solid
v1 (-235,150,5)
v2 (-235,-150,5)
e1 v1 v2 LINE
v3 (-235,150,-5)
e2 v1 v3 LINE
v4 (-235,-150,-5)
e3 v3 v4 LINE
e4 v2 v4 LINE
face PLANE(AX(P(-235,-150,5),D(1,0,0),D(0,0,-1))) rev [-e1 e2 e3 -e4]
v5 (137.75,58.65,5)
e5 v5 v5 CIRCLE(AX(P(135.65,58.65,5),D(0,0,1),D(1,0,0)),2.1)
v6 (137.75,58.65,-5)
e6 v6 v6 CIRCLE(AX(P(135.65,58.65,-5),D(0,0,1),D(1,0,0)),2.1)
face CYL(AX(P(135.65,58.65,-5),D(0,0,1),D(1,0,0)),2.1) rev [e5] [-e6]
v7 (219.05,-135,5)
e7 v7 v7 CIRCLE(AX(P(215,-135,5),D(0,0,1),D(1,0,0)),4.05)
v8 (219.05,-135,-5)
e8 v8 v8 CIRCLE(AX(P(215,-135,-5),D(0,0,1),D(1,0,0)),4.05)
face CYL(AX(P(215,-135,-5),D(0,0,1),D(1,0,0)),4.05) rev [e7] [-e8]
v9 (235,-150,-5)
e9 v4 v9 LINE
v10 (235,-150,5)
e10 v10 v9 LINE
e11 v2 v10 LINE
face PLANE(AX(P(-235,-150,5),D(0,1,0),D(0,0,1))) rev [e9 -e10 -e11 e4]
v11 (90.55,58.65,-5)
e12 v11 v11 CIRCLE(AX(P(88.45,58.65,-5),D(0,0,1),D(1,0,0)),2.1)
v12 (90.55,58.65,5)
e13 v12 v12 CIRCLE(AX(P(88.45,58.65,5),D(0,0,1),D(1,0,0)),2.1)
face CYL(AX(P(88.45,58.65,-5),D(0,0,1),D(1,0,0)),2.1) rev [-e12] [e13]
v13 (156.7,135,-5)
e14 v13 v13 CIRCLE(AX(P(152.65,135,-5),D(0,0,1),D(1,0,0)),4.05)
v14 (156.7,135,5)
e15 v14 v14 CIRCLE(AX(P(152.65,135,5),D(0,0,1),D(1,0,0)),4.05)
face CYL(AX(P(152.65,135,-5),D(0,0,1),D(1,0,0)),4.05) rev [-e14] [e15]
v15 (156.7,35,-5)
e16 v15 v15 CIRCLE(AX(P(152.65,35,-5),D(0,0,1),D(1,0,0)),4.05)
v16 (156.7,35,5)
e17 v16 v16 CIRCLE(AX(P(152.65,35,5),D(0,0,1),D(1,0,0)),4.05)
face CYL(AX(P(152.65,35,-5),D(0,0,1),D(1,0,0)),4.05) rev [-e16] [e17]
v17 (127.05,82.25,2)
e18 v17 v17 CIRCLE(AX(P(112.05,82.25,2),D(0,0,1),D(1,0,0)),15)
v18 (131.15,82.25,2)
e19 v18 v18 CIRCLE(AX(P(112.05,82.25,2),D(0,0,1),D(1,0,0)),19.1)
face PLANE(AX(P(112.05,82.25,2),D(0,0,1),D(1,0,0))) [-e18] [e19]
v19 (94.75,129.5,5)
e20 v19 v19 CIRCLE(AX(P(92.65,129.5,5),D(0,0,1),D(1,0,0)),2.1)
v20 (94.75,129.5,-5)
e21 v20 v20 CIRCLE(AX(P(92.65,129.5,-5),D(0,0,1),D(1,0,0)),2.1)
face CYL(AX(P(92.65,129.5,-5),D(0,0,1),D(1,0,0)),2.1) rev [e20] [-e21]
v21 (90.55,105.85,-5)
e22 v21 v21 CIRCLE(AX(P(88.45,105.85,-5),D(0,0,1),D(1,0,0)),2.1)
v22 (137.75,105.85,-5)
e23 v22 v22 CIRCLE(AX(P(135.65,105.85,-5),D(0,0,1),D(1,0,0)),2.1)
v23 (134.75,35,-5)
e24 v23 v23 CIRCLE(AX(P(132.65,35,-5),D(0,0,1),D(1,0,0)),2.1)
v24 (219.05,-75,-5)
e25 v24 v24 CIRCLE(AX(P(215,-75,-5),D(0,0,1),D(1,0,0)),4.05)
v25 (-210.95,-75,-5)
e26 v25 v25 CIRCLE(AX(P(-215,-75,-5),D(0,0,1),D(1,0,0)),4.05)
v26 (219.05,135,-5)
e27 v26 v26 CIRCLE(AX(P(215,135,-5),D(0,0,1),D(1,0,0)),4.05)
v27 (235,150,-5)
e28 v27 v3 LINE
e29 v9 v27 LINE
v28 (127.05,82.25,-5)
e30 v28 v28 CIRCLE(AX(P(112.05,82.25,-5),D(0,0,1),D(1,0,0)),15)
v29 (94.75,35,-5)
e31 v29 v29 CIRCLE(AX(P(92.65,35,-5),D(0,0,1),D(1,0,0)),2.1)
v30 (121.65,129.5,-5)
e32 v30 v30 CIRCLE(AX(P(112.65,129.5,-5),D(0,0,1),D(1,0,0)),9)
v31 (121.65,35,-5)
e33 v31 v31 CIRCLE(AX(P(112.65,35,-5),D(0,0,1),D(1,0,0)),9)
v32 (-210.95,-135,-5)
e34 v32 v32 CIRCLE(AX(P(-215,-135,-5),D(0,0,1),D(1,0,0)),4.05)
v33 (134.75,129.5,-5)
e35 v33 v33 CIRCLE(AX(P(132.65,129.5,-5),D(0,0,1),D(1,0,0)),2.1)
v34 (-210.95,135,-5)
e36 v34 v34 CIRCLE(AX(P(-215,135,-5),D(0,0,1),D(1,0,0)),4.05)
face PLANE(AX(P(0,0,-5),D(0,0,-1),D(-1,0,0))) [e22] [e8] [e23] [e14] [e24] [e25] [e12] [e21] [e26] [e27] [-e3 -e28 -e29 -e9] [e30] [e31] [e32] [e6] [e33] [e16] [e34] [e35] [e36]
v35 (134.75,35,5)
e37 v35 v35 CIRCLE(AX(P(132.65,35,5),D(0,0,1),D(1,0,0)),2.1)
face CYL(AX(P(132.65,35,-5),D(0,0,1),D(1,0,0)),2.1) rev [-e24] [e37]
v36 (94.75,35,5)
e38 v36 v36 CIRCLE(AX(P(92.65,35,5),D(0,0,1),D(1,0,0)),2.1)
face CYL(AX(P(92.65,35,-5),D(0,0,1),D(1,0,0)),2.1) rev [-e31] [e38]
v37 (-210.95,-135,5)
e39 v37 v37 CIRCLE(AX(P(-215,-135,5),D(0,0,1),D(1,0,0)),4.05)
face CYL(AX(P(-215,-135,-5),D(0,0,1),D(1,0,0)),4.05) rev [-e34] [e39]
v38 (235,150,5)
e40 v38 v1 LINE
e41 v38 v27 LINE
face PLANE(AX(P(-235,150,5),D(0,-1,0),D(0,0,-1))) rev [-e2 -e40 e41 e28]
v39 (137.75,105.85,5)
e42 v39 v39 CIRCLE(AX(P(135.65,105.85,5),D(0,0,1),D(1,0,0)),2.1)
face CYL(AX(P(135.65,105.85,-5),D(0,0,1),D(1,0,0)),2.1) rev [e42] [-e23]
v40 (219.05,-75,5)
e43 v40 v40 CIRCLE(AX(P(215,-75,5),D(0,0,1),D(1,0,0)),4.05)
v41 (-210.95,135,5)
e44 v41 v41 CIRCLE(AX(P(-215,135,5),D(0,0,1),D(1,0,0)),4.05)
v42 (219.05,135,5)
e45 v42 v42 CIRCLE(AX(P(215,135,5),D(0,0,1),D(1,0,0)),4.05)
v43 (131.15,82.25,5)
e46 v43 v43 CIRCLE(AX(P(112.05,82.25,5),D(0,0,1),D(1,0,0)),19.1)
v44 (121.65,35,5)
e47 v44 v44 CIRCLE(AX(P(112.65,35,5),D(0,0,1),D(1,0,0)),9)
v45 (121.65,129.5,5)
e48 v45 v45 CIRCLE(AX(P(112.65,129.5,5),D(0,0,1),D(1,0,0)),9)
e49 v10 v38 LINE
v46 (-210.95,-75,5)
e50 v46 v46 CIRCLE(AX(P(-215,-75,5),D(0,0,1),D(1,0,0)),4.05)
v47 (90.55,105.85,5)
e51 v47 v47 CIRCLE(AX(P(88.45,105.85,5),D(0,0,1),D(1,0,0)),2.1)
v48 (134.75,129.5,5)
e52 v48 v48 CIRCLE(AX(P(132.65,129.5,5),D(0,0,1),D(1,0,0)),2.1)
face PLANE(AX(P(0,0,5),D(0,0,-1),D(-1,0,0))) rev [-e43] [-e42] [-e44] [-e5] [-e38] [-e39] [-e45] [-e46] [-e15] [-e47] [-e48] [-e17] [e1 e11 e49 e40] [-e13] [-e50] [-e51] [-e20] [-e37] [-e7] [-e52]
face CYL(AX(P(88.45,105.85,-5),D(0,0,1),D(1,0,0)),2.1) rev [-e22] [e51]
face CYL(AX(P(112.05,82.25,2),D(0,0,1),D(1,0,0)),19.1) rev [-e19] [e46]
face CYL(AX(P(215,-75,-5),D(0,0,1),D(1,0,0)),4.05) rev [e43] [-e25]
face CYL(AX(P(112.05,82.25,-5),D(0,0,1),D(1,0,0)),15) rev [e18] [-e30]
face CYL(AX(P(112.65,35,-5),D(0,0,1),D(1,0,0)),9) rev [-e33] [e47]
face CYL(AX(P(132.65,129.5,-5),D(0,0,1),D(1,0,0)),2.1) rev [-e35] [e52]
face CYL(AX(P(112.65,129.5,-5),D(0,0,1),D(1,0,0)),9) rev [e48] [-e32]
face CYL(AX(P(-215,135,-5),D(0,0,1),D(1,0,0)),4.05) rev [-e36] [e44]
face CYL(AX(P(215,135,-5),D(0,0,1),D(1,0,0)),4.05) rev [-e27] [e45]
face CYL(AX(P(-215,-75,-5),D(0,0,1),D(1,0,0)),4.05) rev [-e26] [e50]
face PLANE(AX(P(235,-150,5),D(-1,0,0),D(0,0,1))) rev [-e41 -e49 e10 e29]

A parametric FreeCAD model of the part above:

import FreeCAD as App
import Part
import Sketcher

V = App.Vector

doc = App.newDocument("Part")
body = doc.addObject("PartDesign::Body", "Body")

# Sketch on XY plane
sketch1 = body.newObject("Sketcher::SketchObject", "Sketch")
sketch1.AttachmentSupport = (doc.getObject("XY_Plane"), [""])
sketch1.MapMode = "FlatFace"
sketch1.addGeometry([
    Part.LineSegment(V(-235, 150, 0), V(-235, -150, 0)),
    Part.LineSegment(V(-235, -150, 0), V(235, -150, 0)),
    Part.LineSegment(V(235, -150, 0), V(235, 150, 0)),
    Part.LineSegment(V(235, 150, 0), V(-235, 150, 0)),
], False)
sketch1.addConstraint([
    Sketcher.Constraint("Coincident", 0, 2, 1, 1),
    Sketcher.Constraint("Coincident", 1, 2, 2, 1),
    Sketcher.Constraint("Coincident", 2, 2, 3, 1),
    Sketcher.Constraint("Coincident", 3, 2, 0, 1),
    Sketcher.Constraint("Vertical", 0),
    Sketcher.Constraint("Horizontal", 1),
    Sketcher.Constraint("Vertical", 2),
    Sketcher.Constraint("Horizontal", 3),
    Sketcher.Constraint("Symmetric", 0, 2, 2, 2, -1, 1),
    Sketcher.Constraint("DistanceX", 1, 1, 1, 2, 470.0),
    Sketcher.Constraint("DistanceY", 0, 2, 0, 1, 300.0),
])
pad1 = body.newObject("PartDesign::Pad", "Pad")
pad1.Profile = sketch1
pad1.Length = 10
pad1.Midplane = True

# Sketch on XY plane
sketch2 = body.newObject("Sketcher::SketchObject", "Sketch001")
sketch2.AttachmentSupport = (doc.getObject("XY_Plane"), [""])
sketch2.MapMode = "FlatFace"
sketch2.AttachmentOffset = App.Placement(V(0, 0, 5), App.Rotation())
sketch2.addGeometry([
    Part.Circle(V(-215, -75, 0), V(0, 0, 1), 4.05),  # 0
    Part.Circle(V(-215, -135, 0), V(0, 0, 1), 4.05),  # 1
    Part.Circle(V(215, -75, 0), V(0, 0, 1), 4.05),  # 2
    Part.Circle(V(215, -135, 0), V(0, 0, 1), 4.05),  # 3
    Part.Circle(V(-215, 135, 0), V(0, 0, 1), 4.05),  # 4
    Part.Circle(V(215, 135, 0), V(0, 0, 1), 4.05),  # 5
], False)
sketch2.addConstraint([
    Sketcher.Constraint("Equal", 0, 1),
    Sketcher.Constraint("Equal", 1, 2),
    Sketcher.Constraint("Equal", 2, 3),
    Sketcher.Constraint("Equal", 3, 4),
    Sketcher.Constraint("Equal", 4, 5),
    Sketcher.Constraint("Symmetric", 3, 3, 4, 3, -1, 1),
    Sketcher.Constraint("Symmetric", 1, 3, 5, 3, -1, 1),
    Sketcher.Constraint("Symmetric", 0, 3, 2, 3, -2),
    Sketcher.Constraint("Symmetric", 1, 3, 3, 3, -2),
    Sketcher.Constraint("Vertical", 0, 3, 1, 3),
    Sketcher.Constraint("Diameter", 0, 8.1),
    Sketcher.Constraint("DistanceX", 0, 3, -1, 1, 215.0),
    Sketcher.Constraint("DistanceY", 0, 3, -1, 1, 75.0),
    Sketcher.Constraint("DistanceY", 1, 3, -1, 1, 135.0),
])
pocket1 = body.newObject("PartDesign::Pocket", "Pocket")
pocket1.Profile = sketch2
pocket1.Length = 10

# Sketch on XY plane
sketch3 = body.newObject("Sketcher::SketchObject", "Sketch002")
sketch3.AttachmentSupport = (doc.getObject("XY_Plane"), [""])
sketch3.MapMode = "FlatFace"
sketch3.AttachmentOffset = App.Placement(V(0, 0, 5), App.Rotation())
sketch3.addGeometry([
    Part.Circle(V(112.65, 129.5, 0), V(0, 0, 1), 9),  # 0
    Part.Circle(V(112.65, 35, 0), V(0, 0, 1), 9),  # 1
    Part.Circle(V(92.65, 129.5, 0), V(0, 0, 1), 2.1),  # 2
    Part.Circle(V(132.65, 129.5, 0), V(0, 0, 1), 2.1),  # 3
    Part.Circle(V(132.65, 35, 0), V(0, 0, 1), 2.1),  # 4
    Part.Circle(V(92.65, 35, 0), V(0, 0, 1), 2.1),  # 5
], False)
sketch3.addConstraint([
    Sketcher.Constraint("Equal", 0, 1),
    Sketcher.Constraint("Equal", 2, 3),
    Sketcher.Constraint("Equal", 3, 4),
    Sketcher.Constraint("Equal", 4, 5),
    Sketcher.Constraint("Horizontal", 0, 3, 2, 3),
    Sketcher.Constraint("Horizontal", 2, 3, 3, 3),
    Sketcher.Constraint("Horizontal", 1, 3, 4, 3),
    Sketcher.Constraint("Horizontal", 4, 3, 5, 3),
    Sketcher.Constraint("Vertical", 0, 3, 1, 3),
    Sketcher.Constraint("Vertical", 3, 3, 4, 3),
    Sketcher.Constraint("Vertical", 2, 3, 5, 3),
    Sketcher.Constraint("Diameter", 0, 18.0),
    Sketcher.Constraint("Diameter", 2, 4.2),
    Sketcher.Constraint("DistanceY", -1, 1, 1, 3, 35.0),
    Sketcher.Constraint("DistanceX", 2, 3, 0, 3, 20.0),
    Sketcher.Constraint("DistanceX", 0, 3, 3, 3, 20.0),
    Sketcher.Constraint("DistanceY", -1, 1, 0, 3, 129.5),
    Sketcher.Constraint("DistanceX", -1, 1, 0, 3, 112.65),
])
pocket2 = body.newObject("PartDesign::Pocket", "Pocket001")
pocket2.Profile = sketch3
pocket2.Type = "ThroughAll"

# Sketch on XY plane
sketch4 = body.newObject("Sketcher::SketchObject", "Sketch003")
sketch4.AttachmentSupport = (doc.getObject("XY_Plane"), [""])
sketch4.MapMode = "FlatFace"
sketch4.AttachmentOffset = App.Placement(V(0, 0, 5), App.Rotation())
sketch4.addGeometry([
    Part.Circle(V(152.65, 135, 0), V(0, 0, 1), 4.05),
    Part.Circle(V(152.65, 35, 0), V(0, 0, 1), 4.05),
], False)
sketch4.addConstraint([
    Sketcher.Constraint("Equal", 0, 1),
    Sketcher.Constraint("Vertical", 0, 3, 1, 3),
    Sketcher.Constraint("Diameter", 0, 8.1),
    Sketcher.Constraint("DistanceY", -1, 1, 0, 3, 135.0),
    Sketcher.Constraint("DistanceY", -1, 1, 1, 3, 35.0),
    Sketcher.Constraint("DistanceX", -1, 1, 0, 3, 152.65),
])
pocket3 = body.newObject("PartDesign::Pocket", "Pocket002")
pocket3.Profile = sketch4
pocket3.Type = "ThroughAll"

# Sketch on XY plane
sketch5 = body.newObject("Sketcher::SketchObject", "Sketch004")
sketch5.AttachmentSupport = (doc.getObject("XY_Plane"), [""])
sketch5.MapMode = "FlatFace"
sketch5.AttachmentOffset = App.Placement(V(0, 0, 5), App.Rotation())
sketch5.addGeometry(Part.Circle(V(112.05, 82.25, 0), V(0, 0, 1), 19.1), False)
sketch5.addConstraint([
    Sketcher.Constraint("Diameter", 0, 38.2),
    Sketcher.Constraint("DistanceX", -1, 1, 0, 3, 112.05),
    Sketcher.Constraint("DistanceY", -1, 1, 0, 3, 82.25),
])
pocket4 = body.newObject("PartDesign::Pocket", "Pocket003")
pocket4.Profile = sketch5
pocket4.Length = 3

# Sketch on XY plane
sketch6 = body.newObject("Sketcher::SketchObject", "Sketch005")
sketch6.AttachmentSupport = (doc.getObject("XY_Plane"), [""])
sketch6.MapMode = "FlatFace"
sketch6.AttachmentOffset = App.Placement(V(0, 0, 2), App.Rotation())
sketch6.addGeometry(Part.Circle(V(112.05, 82.25, 0), V(0, 0, 1), 15), False)
sketch6.addConstraint([
    Sketcher.Constraint("Diameter", 0, 30.0),
    Sketcher.Constraint("DistanceX", -1, 1, 0, 3, 112.05),
    Sketcher.Constraint("DistanceY", -1, 1, 0, 3, 82.25),
])
pocket5 = body.newObject("PartDesign::Pocket", "Pocket004")
pocket5.Profile = sketch6
pocket5.Type = "ThroughAll"

# Sketch on XY plane
sketch7 = body.newObject("Sketcher::SketchObject", "Sketch006")
sketch7.AttachmentSupport = (doc.getObject("XY_Plane"), [""])
sketch7.MapMode = "FlatFace"
sketch7.AttachmentOffset = App.Placement(V(0, 0, 5), App.Rotation())
sketch7.addGeometry([
    Part.Circle(V(88.45, 105.85, 0), V(0, 0, 1), 2.1),
    Part.Circle(V(135.65, 105.85, 0), V(0, 0, 1), 2.1),
    Part.Circle(V(135.65, 58.65, 0), V(0, 0, 1), 2.1),
    Part.Circle(V(88.45, 58.65, 0), V(0, 0, 1), 2.1),
], False)
sketch7.addConstraint([
    Sketcher.Constraint("Equal", 0, 1),
    Sketcher.Constraint("Equal", 1, 2),
    Sketcher.Constraint("Equal", 2, 3),
    Sketcher.Constraint("Horizontal", 0, 3, 1, 3),
    Sketcher.Constraint("Horizontal", 2, 3, 3, 3),
    Sketcher.Constraint("Vertical", 1, 3, 2, 3),
    Sketcher.Constraint("Vertical", 0, 3, 3, 3),
    Sketcher.Constraint("Diameter", 0, 4.2),
    Sketcher.Constraint("DistanceX", 0, 3, 1, 3, 47.2),
    Sketcher.Constraint("DistanceY", 2, 3, 1, 3, 47.2),
    Sketcher.Constraint("DistanceX", -1, 1, 0, 3, 88.45),
    Sketcher.Constraint("DistanceY", -1, 1, 0, 3, 105.85),
])
pocket6 = body.newObject("PartDesign::Pocket", "Pocket005")
pocket6.Profile = sketch7
pocket6.Type = "ThroughAll"

doc.recompute()
